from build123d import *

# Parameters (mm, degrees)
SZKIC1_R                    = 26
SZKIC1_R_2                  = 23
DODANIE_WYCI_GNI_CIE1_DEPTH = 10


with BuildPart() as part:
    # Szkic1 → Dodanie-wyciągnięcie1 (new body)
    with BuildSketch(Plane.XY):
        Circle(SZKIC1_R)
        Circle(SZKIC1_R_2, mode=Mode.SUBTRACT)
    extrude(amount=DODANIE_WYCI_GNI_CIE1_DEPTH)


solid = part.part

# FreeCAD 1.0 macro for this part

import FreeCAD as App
import Part
import Sketcher

V = App.Vector
Q = App.Units.Quantity

doc = App.newDocument("Part")
params = doc.addObject("Spreadsheet::Sheet", "Params")
for row, (alias, value) in enumerate([
    ("sketch1_diameter", "52 mm"),
    ("sketch1_diameter2", "46 mm"),
    ("pad1_length", "10 mm"),
], start=1):
    params.set(f"A{row}", alias)
    params.set(f"B{row}", "=" + value)
    params.setAlias(f"B{row}", alias)

body = doc.addObject("PartDesign::Body", "Body")

sketch1 = body.newObject("Sketcher::SketchObject", "Sketch")
sketch1.AttachmentSupport = (doc.getObject("XY_Plane"), [""])
sketch1.MapMode = "FlatFace"
sketch1.addGeometry([
    Part.Circle(V(0, 0, 0), V(0, 0, 1), 26),
    Part.Circle(V(0, 0, 0), V(0, 0, 1), 23),
], False)
sketch1.addConstraint([
    Sketcher.Constraint("Coincident", 0, 3, -1, 1),
    Sketcher.Constraint("Coincident", 1, 3, -1, 1),
    Sketcher.Constraint("Diameter", 0, Q("52 mm")),
    Sketcher.Constraint("Diameter", 1, Q("46 mm")),
])
sketch1.setExpression("Constraints[2]", "Params.sketch1_diameter")
sketch1.setExpression("Constraints[3]", "Params.sketch1_diameter2")
pad1 = body.newObject("PartDesign::Pad", "Pad")
pad1.Profile = sketch1
pad1.setExpression("Length", "Params.pad1_length")

doc.recompute()
